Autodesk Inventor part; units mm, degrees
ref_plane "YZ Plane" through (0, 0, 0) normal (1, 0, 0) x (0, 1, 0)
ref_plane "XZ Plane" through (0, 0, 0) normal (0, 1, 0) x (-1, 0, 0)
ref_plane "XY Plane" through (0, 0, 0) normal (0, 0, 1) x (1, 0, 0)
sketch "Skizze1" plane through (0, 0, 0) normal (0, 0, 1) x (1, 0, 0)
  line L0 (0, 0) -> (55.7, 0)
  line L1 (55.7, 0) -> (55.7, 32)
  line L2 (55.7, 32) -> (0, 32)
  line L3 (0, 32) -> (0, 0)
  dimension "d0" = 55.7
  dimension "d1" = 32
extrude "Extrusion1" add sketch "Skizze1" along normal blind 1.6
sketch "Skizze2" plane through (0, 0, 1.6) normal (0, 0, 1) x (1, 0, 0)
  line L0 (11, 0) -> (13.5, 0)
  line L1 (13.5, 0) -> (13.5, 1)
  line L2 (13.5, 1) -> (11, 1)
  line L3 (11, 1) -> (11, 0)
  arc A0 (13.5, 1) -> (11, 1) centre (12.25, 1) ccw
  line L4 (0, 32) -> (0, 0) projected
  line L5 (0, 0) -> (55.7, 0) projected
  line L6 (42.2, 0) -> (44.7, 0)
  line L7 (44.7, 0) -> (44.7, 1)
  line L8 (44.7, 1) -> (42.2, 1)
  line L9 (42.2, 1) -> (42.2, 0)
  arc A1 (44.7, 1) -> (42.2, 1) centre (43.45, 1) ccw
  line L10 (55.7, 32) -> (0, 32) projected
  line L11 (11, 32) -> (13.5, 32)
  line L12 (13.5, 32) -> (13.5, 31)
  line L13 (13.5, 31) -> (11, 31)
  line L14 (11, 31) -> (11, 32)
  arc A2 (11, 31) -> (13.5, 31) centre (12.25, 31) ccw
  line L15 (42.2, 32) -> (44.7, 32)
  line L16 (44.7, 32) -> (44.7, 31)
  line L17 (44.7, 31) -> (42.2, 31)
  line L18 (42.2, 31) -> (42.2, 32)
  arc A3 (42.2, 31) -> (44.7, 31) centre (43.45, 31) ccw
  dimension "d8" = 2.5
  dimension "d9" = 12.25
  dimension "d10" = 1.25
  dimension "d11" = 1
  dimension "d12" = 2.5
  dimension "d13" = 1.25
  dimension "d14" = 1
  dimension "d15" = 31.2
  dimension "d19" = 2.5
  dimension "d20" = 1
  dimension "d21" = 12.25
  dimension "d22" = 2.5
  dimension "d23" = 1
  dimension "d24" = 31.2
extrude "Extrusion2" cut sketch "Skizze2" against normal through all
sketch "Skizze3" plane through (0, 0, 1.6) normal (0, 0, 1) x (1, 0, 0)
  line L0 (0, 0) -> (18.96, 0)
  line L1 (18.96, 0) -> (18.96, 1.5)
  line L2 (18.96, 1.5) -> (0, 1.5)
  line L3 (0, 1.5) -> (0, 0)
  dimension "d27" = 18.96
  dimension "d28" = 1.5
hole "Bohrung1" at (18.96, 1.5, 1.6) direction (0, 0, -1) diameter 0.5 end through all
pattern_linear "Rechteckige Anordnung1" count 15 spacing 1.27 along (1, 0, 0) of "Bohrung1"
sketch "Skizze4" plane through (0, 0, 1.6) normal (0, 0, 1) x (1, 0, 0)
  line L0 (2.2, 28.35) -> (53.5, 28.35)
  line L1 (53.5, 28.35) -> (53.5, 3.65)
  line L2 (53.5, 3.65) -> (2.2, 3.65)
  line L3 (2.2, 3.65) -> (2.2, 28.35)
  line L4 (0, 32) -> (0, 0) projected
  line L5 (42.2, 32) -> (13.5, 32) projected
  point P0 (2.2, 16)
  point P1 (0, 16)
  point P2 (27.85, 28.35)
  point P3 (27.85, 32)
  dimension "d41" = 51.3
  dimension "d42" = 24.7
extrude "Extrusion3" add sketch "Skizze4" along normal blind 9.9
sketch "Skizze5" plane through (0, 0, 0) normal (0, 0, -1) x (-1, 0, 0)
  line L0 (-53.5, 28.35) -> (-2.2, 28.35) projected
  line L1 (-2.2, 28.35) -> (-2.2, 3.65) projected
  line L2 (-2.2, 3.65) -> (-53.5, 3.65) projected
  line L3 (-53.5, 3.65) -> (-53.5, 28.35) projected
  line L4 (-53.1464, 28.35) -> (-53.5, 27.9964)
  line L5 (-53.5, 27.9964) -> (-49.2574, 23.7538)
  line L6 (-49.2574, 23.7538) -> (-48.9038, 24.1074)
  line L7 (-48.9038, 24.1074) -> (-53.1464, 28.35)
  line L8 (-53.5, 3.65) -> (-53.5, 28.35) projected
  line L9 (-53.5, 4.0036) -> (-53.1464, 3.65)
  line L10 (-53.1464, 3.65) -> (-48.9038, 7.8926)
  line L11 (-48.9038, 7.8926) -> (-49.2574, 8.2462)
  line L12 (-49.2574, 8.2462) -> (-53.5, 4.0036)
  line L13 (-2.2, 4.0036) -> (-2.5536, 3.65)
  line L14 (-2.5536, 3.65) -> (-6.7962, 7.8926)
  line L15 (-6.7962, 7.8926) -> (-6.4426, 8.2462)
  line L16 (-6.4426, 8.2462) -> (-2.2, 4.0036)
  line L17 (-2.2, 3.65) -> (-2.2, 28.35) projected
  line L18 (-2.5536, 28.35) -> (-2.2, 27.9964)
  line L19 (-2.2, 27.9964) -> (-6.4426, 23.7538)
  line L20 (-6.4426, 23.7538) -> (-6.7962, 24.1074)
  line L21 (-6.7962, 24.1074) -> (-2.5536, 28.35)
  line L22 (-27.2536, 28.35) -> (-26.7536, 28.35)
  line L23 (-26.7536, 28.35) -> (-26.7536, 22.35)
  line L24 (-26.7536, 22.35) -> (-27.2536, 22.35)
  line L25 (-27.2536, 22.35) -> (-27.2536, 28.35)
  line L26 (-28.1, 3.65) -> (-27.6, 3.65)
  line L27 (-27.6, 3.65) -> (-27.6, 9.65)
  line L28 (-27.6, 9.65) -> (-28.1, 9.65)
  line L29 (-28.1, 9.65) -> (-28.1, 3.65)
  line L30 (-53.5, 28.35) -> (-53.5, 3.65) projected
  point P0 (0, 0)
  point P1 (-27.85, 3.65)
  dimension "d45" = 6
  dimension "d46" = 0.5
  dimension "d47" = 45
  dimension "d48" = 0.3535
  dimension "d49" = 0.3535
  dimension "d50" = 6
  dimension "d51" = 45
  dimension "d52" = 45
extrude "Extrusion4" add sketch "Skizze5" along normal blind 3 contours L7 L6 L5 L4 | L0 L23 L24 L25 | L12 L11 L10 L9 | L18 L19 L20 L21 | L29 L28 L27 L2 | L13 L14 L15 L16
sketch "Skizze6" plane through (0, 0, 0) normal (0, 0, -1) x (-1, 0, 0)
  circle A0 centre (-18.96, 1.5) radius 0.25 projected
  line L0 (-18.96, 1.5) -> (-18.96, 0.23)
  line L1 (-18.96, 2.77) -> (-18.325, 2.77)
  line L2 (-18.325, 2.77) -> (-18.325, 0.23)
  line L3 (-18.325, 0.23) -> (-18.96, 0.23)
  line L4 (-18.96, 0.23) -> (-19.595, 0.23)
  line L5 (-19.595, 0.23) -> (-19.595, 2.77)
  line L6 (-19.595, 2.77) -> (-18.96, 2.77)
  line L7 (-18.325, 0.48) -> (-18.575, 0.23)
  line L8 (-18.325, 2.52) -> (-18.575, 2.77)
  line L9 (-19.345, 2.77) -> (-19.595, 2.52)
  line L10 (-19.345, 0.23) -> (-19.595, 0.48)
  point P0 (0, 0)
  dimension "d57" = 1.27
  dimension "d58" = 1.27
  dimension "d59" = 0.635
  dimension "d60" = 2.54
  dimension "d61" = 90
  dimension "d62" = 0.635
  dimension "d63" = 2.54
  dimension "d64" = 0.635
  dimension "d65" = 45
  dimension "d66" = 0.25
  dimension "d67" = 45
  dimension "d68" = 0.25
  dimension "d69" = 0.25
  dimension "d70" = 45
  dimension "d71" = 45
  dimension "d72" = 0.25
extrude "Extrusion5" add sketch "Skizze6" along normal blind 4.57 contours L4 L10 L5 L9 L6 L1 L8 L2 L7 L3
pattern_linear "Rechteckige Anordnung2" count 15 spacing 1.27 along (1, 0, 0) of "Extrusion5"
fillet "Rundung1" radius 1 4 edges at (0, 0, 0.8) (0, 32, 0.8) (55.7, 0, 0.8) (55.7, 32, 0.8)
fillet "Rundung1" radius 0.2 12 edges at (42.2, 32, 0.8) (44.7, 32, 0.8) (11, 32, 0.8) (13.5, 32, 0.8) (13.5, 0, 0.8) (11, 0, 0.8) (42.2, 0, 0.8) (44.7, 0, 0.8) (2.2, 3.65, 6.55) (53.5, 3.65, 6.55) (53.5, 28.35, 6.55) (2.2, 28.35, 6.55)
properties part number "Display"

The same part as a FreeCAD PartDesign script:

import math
import FreeCAD as App
import Part
import Sketcher

V = App.Vector


def edges_at(feature, points):
    """Names of the edges that pass closest to the given points."""
    edges = feature.Shape.Edges
    near = lambda p: min(range(len(edges)), key=lambda i: edges[i].distToShape(Part.Vertex(*p))[0])
    return sorted({f"Edge{near(p) + 1}" for p in points})

doc = App.newDocument("Part")
body = doc.addObject("PartDesign::Body", "Body")

sketch1 = doc.addObject("Sketcher::SketchObject", "Sketch")
body.addObject(sketch1)
sketch1.AttachmentSupport = (doc.XY_Plane, [""])
sketch1.MapMode = "FlatFace"
sketch1.addGeometry(Part.LineSegment(V(0, 32, 0), V(0, 0, 0)), False)
sketch1.addGeometry(Part.LineSegment(V(0, 0, 0), V(56, 0, 0)), False)
sketch1.addGeometry(Part.LineSegment(V(56, 0, 0), V(56, 32, 0)), False)
sketch1.addGeometry(Part.LineSegment(V(56, 32, 0), V(0, 32, 0)), False)
sketch1.addConstraint(Sketcher.Constraint("Coincident", 0, 2, 1, 1))
sketch1.addConstraint(Sketcher.Constraint("Coincident", 1, 2, 2, 1))
sketch1.addConstraint(Sketcher.Constraint("Coincident", 2, 2, 3, 1))
sketch1.addConstraint(Sketcher.Constraint("Coincident", 3, 2, 0, 1))
sketch1.addConstraint(Sketcher.Constraint("Vertical", 0))
sketch1.addConstraint(Sketcher.Constraint("Horizontal", 1))
sketch1.addConstraint(Sketcher.Constraint("Vertical", 2))
sketch1.addConstraint(Sketcher.Constraint("Horizontal", 3))
sketch1.addConstraint(Sketcher.Constraint("Coincident", 0, 2, -1, 1))
sketch1.addConstraint(Sketcher.Constraint("DistanceY", 0, 2, 0, 1, 32.0))
sketch1.addConstraint(Sketcher.Constraint("DistanceX", 1, 1, 1, 2, 55.7))
pad1 = doc.addObject("PartDesign::Pad", "Pad")
body.addObject(pad1)
pad1.Profile = sketch1
pad1.Length = 1.6

sketch2 = doc.addObject("Sketcher::SketchObject", "Sketch001")
body.addObject(sketch2)
sketch2.AttachmentSupport = (doc.XY_Plane, [""])
sketch2.MapMode = "FlatFace"
sketch2.AttachmentOffset = App.Placement(V(0, 0, 1.6), App.Rotation())
sketch2.addGeometry(Part.LineSegment(V(11, 1, 0), V(11, 0, 0)), False)
sketch2.addGeometry(Part.LineSegment(V(11, 0, 0), V(13.5, 0, 0)), False)
sketch2.addGeometry(Part.LineSegment(V(13.5, 0, 0), V(13.5, 1, 0)), False)
sketch2.addGeometry(Part.ArcOfCircle(Part.Circle(V(12.2, 1, 0), V(0, 0, 1), 1.2), math.radians(0), math.radians(180)), False)
sketch2.addGeometry(Part.LineSegment(V(42.2, 1, 0), V(42.2, 0, 0)), False)
sketch2.addGeometry(Part.LineSegment(V(42.2, 0, 0), V(44.7, 0, 0)), False)
sketch2.addGeometry(Part.LineSegment(V(44.7, 0, 0), V(44.7, 1, 0)), False)
sketch2.addGeometry(Part.ArcOfCircle(Part.Circle(V(43.5, 1, 0), V(0, 0, 1), 1.2), math.radians(0), math.radians(180)), False)
sketch2.addGeometry(Part.LineSegment(V(44.7, 32, 0), V(42.2, 32, 0)), False)
sketch2.addGeometry(Part.LineSegment(V(42.2, 32, 0), V(42.2, 31, 0)), False)
sketch2.addGeometry(Part.ArcOfCircle(Part.Circle(V(43.5, 31, 0), V(0, 0, 1), 1.2), math.radians(180), math.radians(360)), False)
sketch2.addGeometry(Part.LineSegment(V(44.7, 31, 0), V(44.7, 32, 0)), False)
sketch2.addGeometry(Part.LineSegment(V(13.5, 32, 0), V(11, 32, 0)), False)
sketch2.addGeometry(Part.LineSegment(V(11, 32, 0), V(11, 31, 0)), False)
sketch2.addGeometry(Part.ArcOfCircle(Part.Circle(V(12.2, 31, 0), V(0, 0, 1), 1.2), math.radians(180), math.radians(360)), False)
sketch2.addGeometry(Part.LineSegment(V(13.5, 31, 0), V(13.5, 32, 0)), False)
sketch2.addConstraint(Sketcher.Constraint("Coincident", 0, 2, 1, 1))
sketch2.addConstraint(Sketcher.Constraint("Coincident", 1, 2, 2, 1))
sketch2.addConstraint(Sketcher.Constraint("Tangent", 2, 2, 3, 1))
sketch2.addConstraint(Sketcher.Constraint("Tangent", 3, 2, 0, 1))
sketch2.addConstraint(Sketcher.Constraint("Coincident", 4, 2, 5, 1))
sketch2.addConstraint(Sketcher.Constraint("Coincident", 5, 2, 6, 1))
sketch2.addConstraint(Sketcher.Constraint("Tangent", 6, 2, 7, 1))
sketch2.addConstraint(Sketcher.Constraint("Tangent", 7, 2, 4, 1))
sketch2.addConstraint(Sketcher.Constraint("Coincident", 8, 2, 9, 1))
sketch2.addConstraint(Sketcher.Constraint("Tangent", 9, 2, 10, 1))
sketch2.addConstraint(Sketcher.Constraint("Tangent", 10, 2, 11, 1))
sketch2.addConstraint(Sketcher.Constraint("Coincident", 11, 2, 8, 1))
sketch2.addConstraint(Sketcher.Constraint("Coincident", 12, 2, 13, 1))
sketch2.addConstraint(Sketcher.Constraint("Tangent", 13, 2, 14, 1))
sketch2.addConstraint(Sketcher.Constraint("Tangent", 14, 2, 15, 1))
sketch2.addConstraint(Sketcher.Constraint("Coincident", 15, 2, 12, 1))
sketch2.addConstraint(Sketcher.Constraint("Vertical", 0))
sketch2.addConstraint(Sketcher.Constraint("Horizontal", 1))
sketch2.addConstraint(Sketcher.Constraint("Vertical", 2))
sketch2.addConstraint(Sketcher.Constraint("Vertical", 4))
sketch2.addConstraint(Sketcher.Constraint("Horizontal", 5))
sketch2.addConstraint(Sketcher.Constraint("Vertical", 6))
sketch2.addConstraint(Sketcher.Constraint("Horizontal", 8))
sketch2.addConstraint(Sketcher.Constraint("Vertical", 9))
sketch2.addConstraint(Sketcher.Constraint("Vertical", 11))
sketch2.addConstraint(Sketcher.Constraint("Horizontal", 12))
sketch2.addConstraint(Sketcher.Constraint("Vertical", 13))
sketch2.addConstraint(Sketcher.Constraint("Vertical", 15))
sketch2.addConstraint(Sketcher.Constraint("Equal", 3, 7))
sketch2.addConstraint(Sketcher.Constraint("Equal", 7, 10))
sketch2.addConstraint(Sketcher.Constraint("Equal", 10, 14))
sketch2.addConstraint(Sketcher.Constraint("PointOnObject", 0, 2, -1))
sketch2.addConstraint(Sketcher.Constraint("PointOnObject", 4, 2, -1))
sketch2.addConstraint(Sketcher.Constraint("Horizontal", 3, 3, 7, 3))
sketch2.addConstraint(Sketcher.Constraint("Horizontal", 10, 3, 14, 3))
sketch2.addConstraint(Sketcher.Constraint("Horizontal", 11, 2, 12, 2))
sketch2.addConstraint(Sketcher.Constraint("Vertical", 7, 3, 10, 3))
sketch2.addConstraint(Sketcher.Constraint("Vertical", 3, 3, 14, 3))
sketch2.addConstraint(Sketcher.Constraint("Equal", 6, 9))
sketch2.addConstraint(Sketcher.Constraint("DistanceY", 0, 2, 0, 1, 1.0))
sketch2.addConstraint(Sketcher.Constraint("Radius", 3, 1.25))
sketch2.addConstraint(Sketcher.Constraint("DistanceX", 3, 3, 7, 3, 31.2))
sketch2.addConstraint(Sketcher.Constraint("DistanceX", -1, 1, 3, 3, 12.25))
sketch2.addConstraint(Sketcher.Constraint("DistanceY", -1, 1, 10, 3, 31.0))
pocket1 = doc.addObject("PartDesign::Pocket", "Pocket")
body.addObject(pocket1)
pocket1.Profile = sketch2
pocket1.Type = "ThroughAll"

sketch3 = doc.addObject("Sketcher::SketchObject", "Sketch002")
body.addObject(sketch3)
sketch3.AttachmentSupport = (doc.XY_Plane, [""])
sketch3.MapMode = "FlatFace"
sketch3.AttachmentOffset = App.Placement(V(0, 0, 1.6), App.Rotation())
sketch3.addGeometry(Part.Circle(V(18.96, 1.5, 0), V(0, 0, 1), 0.25), False)
sketch3.addConstraint(Sketcher.Constraint("Diameter", 0, 0.5))
sketch3.addConstraint(Sketcher.Constraint("DistanceY", -1, 1, 0, 3, 1.5))
sketch3.addConstraint(Sketcher.Constraint("DistanceX", -1, 1, 0, 3, 18.96))
doc.recompute()
hole = doc.addObject("PartDesign::Hole", "Hole")
body.addObject(hole)
hole.Profile = sketch3
hole.ThreadType = "None"
hole.Diameter = 0.5
hole.DepthType = "ThroughAll"
doc.recompute()

linearpattern = doc.addObject("PartDesign::LinearPattern", "LinearPattern")
body.addObject(linearpattern)
linearpattern.Originals = [hole]
linearpattern.Direction = (doc.X_Axis, [""])
linearpattern.Mode = "offset"
linearpattern.Offset = 1.27
linearpattern.Occurrences = 15
body.Tip = linearpattern

sketch4 = doc.addObject("Sketcher::SketchObject", "Sketch003")
body.addObject(sketch4)
sketch4.AttachmentSupport = (doc.XY_Plane, [""])
sketch4.MapMode = "FlatFace"
sketch4.AttachmentOffset = App.Placement(V(0, 0, 1.6), App.Rotation())
sketch4.addGeometry(Part.LineSegment(V(54, 28, 0), V(2, 28, 0)), False)
sketch4.addGeometry(Part.LineSegment(V(2, 28, 0), V(2, 4, 0)), False)
sketch4.addGeometry(Part.LineSegment(V(2, 4, 0), V(54, 4, 0)), False)
sketch4.addGeometry(Part.LineSegment(V(54, 4, 0), V(54, 28, 0)), False)
sketch4.addConstraint(Sketcher.Constraint("Coincident", 0, 2, 1, 1))
sketch4.addConstraint(Sketcher.Constraint("Coincident", 1, 2, 2, 1))
sketch4.addConstraint(Sketcher.Constraint("Coincident", 2, 2, 3, 1))
sketch4.addConstraint(Sketcher.Constraint("Coincident", 3, 2, 0, 1))
sketch4.addConstraint(Sketcher.Constraint("Horizontal", 0))
sketch4.addConstraint(Sketcher.Constraint("Vertical", 1))
sketch4.addConstraint(Sketcher.Constraint("Horizontal", 2))
sketch4.addConstraint(Sketcher.Constraint("Vertical", 3))
sketch4.addConstraint(Sketcher.Constraint("DistanceX", 0, 2, 0, 1, 51.3))
sketch4.addConstraint(Sketcher.Constraint("DistanceY", 1, 2, 1, 1, 24.7))
sketch4.addConstraint(Sketcher.Constraint("DistanceX", -1, 1, 0, 2, 2.2))
sketch4.addConstraint(Sketcher.Constraint("DistanceY", -1, 1, 0, 2, 28.35))
pad2 = doc.addObject("PartDesign::Pad", "Pad001")
body.addObject(pad2)
pad2.Profile = sketch4
pad2.Length = 9.9

sketch5 = doc.addObject("Sketcher::SketchObject", "Sketch004")
body.addObject(sketch5)
sketch5.AttachmentSupport = (doc.XY_Plane, [""])
sketch5.MapMode = "FlatFace"
sketch5.addGeometry(Part.LineSegment(V(48.9, 24.1, 0), V(53.1, 28.4, 0)), False)
sketch5.addGeometry(Part.LineSegment(V(53.1, 28.4, 0), V(53.5, 28, 0)), False)
sketch5.addGeometry(Part.LineSegment(V(53.5, 28, 0), V(49.3, 23.8, 0)), False)
sketch5.addGeometry(Part.LineSegment(V(49.3, 23.8, 0), V(48.9, 24.1, 0)), False)
sketch5.addGeometry(Part.LineSegment(V(26.8, 28.4, 0), V(27.3, 28.4, 0)), False)
sketch5.addGeometry(Part.LineSegment(V(27.3, 28.4, 0), V(27.3, 22.4, 0)), False)
sketch5.addGeometry(Part.LineSegment(V(27.3, 22.4, 0), V(26.8, 22.4, 0)), False)
sketch5.addGeometry(Part.LineSegment(V(26.8, 22.4, 0), V(26.8, 28.4, 0)), False)
sketch5.addGeometry(Part.LineSegment(V(49.3, 8.2, 0), V(53.5, 4, 0)), False)
sketch5.addGeometry(Part.LineSegment(V(53.5, 4, 0), V(53.1, 3.6, 0)), False)
sketch5.addGeometry(Part.LineSegment(V(53.1, 3.6, 0), V(48.9, 7.9, 0)), False)
sketch5.addGeometry(Part.LineSegment(V(48.9, 7.9, 0), V(49.3, 8.2, 0)), False)
sketch5.addGeometry(Part.LineSegment(V(2.2, 28, 0), V(2.6, 28.4, 0)), False)
sketch5.addGeometry(Part.LineSegment(V(2.6, 28.4, 0), V(6.8, 24.1, 0)), False)
sketch5.addGeometry(Part.LineSegment(V(6.8, 24.1, 0), V(6.4, 23.8, 0)), False)
sketch5.addGeometry(Part.LineSegment(V(6.4, 23.8, 0), V(2.2, 28, 0)), False)
sketch5.addGeometry(Part.LineSegment(V(28.1, 9.7, 0), V(28.1, 3.6, 0)), False)
sketch5.addGeometry(Part.LineSegment(V(28.1, 3.6, 0), V(27.6, 3.6, 0)), False)
sketch5.addGeometry(Part.LineSegment(V(27.6, 3.6, 0), V(27.6, 9.7, 0)), False)
sketch5.addGeometry(Part.LineSegment(V(27.6, 9.7, 0), V(28.1, 9.7, 0)), False)
sketch5.addGeometry(Part.LineSegment(V(2.6, 3.6, 0), V(2.2, 4, 0)), False)
sketch5.addGeometry(Part.LineSegment(V(2.2, 4, 0), V(6.4, 8.2, 0)), False)
sketch5.addGeometry(Part.LineSegment(V(6.4, 8.2, 0), V(6.8, 7.9, 0)), False)
sketch5.addGeometry(Part.LineSegment(V(6.8, 7.9, 0), V(2.6, 3.6, 0)), False)
sketch5.addConstraint(Sketcher.Constraint("Coincident", 0, 2, 1, 1))
sketch5.addConstraint(Sketcher.Constraint("Coincident", 1, 2, 2, 1))
sketch5.addConstraint(Sketcher.Constraint("Coincident", 2, 2, 3, 1))
sketch5.addConstraint(Sketcher.Constraint("Coincident", 3, 2, 0, 1))
sketch5.addConstraint(Sketcher.Constraint("Coincident", 4, 2, 5, 1))
sketch5.addConstraint(Sketcher.Constraint("Coincident", 5, 2, 6, 1))
sketch5.addConstraint(Sketcher.Constraint("Coincident", 6, 2, 7, 1))
sketch5.addConstraint(Sketcher.Constraint("Coincident", 7, 2, 4, 1))
sketch5.addConstraint(Sketcher.Constraint("Coincident", 8, 2, 9, 1))
sketch5.addConstraint(Sketcher.Constraint("Coincident", 9, 2, 10, 1))
sketch5.addConstraint(Sketcher.Constraint("Coincident", 10, 2, 11, 1))
sketch5.addConstraint(Sketcher.Constraint("Coincident", 11, 2, 8, 1))
sketch5.addConstraint(Sketcher.Constraint("Coincident", 12, 2, 13, 1))
sketch5.addConstraint(Sketcher.Constraint("Coincident", 13, 2, 14, 1))
sketch5.addConstraint(Sketcher.Constraint("Coincident", 14, 2, 15, 1))
sketch5.addConstraint(Sketcher.Constraint("Coincident", 15, 2, 12, 1))
sketch5.addConstraint(Sketcher.Constraint("Coincident", 16, 2, 17, 1))
sketch5.addConstraint(Sketcher.Constraint("Coincident", 17, 2, 18, 1))
sketch5.addConstraint(Sketcher.Constraint("Coincident", 18, 2, 19, 1))
sketch5.addConstraint(Sketcher.Constraint("Coincident", 19, 2, 16, 1))
sketch5.addConstraint(Sketcher.Constraint("Coincident", 20, 2, 21, 1))
sketch5.addConstraint(Sketcher.Constraint("Coincident", 21, 2, 22, 1))
sketch5.addConstraint(Sketcher.Constraint("Coincident", 22, 2, 23, 1))
sketch5.addConstraint(Sketcher.Constraint("Coincident", 23, 2, 20, 1))
sketch5.addConstraint(Sketcher.Constraint("Horizontal", 4))
sketch5.addConstraint(Sketcher.Constraint("Vertical", 5))
sketch5.addConstraint(Sketcher.Constraint("Horizontal", 6))
sketch5.addConstraint(Sketcher.Constraint("Vertical", 7))
sketch5.addConstraint(Sketcher.Constraint("Vertical", 16))
sketch5.addConstraint(Sketcher.Constraint("Horizontal", 17))
sketch5.addConstraint(Sketcher.Constraint("Vertical", 18))
sketch5.addConstraint(Sketcher.Constraint("Horizontal", 19))
sketch5.addConstraint(Sketcher.Constraint("Perpendicular", 0, 1))
sketch5.addConstraint(Sketcher.Constraint("Perpendicular", 1, 2))
sketch5.addConstraint(Sketcher.Constraint("Perpendicular", 2, 3))
sketch5.addConstraint(Sketcher.Constraint("Parallel", 3, 8))
sketch5.addConstraint(Sketcher.Constraint("Perpendicular", 8, 9))
sketch5.addConstraint(Sketcher.Constraint("Perpendicular", 9, 10))
sketch5.addConstraint(Sketcher.Constraint("Perpendicular", 10, 11))
sketch5.addConstraint(Sketcher.Constraint("Parallel", 11, 12))
sketch5.addConstraint(Sketcher.Constraint("Perpendicular", 12, 13))
sketch5.addConstraint(Sketcher.Constraint("Perpendicular", 13, 14))
sketch5.addConstraint(Sketcher.Constraint("Perpendicular", 14, 15))
sketch5.addConstraint(Sketcher.Constraint("Parallel", 15, 20))
sketch5.addConstraint(Sketcher.Constraint("Perpendicular", 20, 21))
sketch5.addConstraint(Sketcher.Constraint("Perpendicular", 21, 22))
sketch5.addConstraint(Sketcher.Constraint("Perpendicular", 22, 23))
sketch5.addConstraint(Sketcher.Constraint("Horizontal", 0, 2, 4, 2))
sketch5.addConstraint(Sketcher.Constraint("Horizontal", 7, 2, 12, 2))
sketch5.addConstraint(Sketcher.Constraint("Horizontal", 3, 2, 13, 2))
sketch5.addConstraint(Sketcher.Constraint("Horizontal", 2, 2, 14, 2))
sketch5.addConstraint(Sketcher.Constraint("Horizontal", 9, 2, 16, 2))
sketch5.addConstraint(Sketcher.Constraint("Horizontal", 8, 2, 20, 2))
sketch5.addConstraint(Sketcher.Constraint("Horizontal", 11, 2, 21, 2))
sketch5.addConstraint(Sketcher.Constraint("Horizontal", 10, 2, 22, 2))
sketch5.addConstraint(Sketcher.Constraint("Vertical", 1, 2, 8, 2))
sketch5.addConstraint(Sketcher.Constraint("Vertical", 0, 2, 9, 2))
sketch5.addConstraint(Sketcher.Constraint("Vertical", 3, 2, 10, 2))
sketch5.addConstraint(Sketcher.Constraint("Vertical", 15, 2, 20, 2))
sketch5.addConstraint(Sketcher.Constraint("Vertical", 14, 2, 21, 2))
sketch5.addConstraint(Sketcher.Constraint("Equal", 6, 17))
sketch5.addConstraint(Sketcher.Constraint("Equal", 7, 16))
sketch5.addConstraint(Sketcher.Constraint("DistanceY", 5, 2, 5, 1, 6.0))
sketch5.addConstraint(Sketcher.Constraint("Distance", 0, 6.0))
sketch5.addConstraint(Sketcher.Constraint("DistanceX", 4, 1, 4, 2, 0.5))
sketch5.addConstraint(Sketcher.Constraint("Distance", 1, 0.5))
sketch5.addConstraint(Sketcher.Constraint("DistanceX", -1, 1, 1, 2, 53.5))
sketch5.addConstraint(Sketcher.Constraint("DistanceX", -1, 1, 15, 2, 2.2))
sketch5.addConstraint(Sketcher.Constraint("DistanceX", -1, 1, 16, 2, 28.1))
sketch5.addConstraint(Sketcher.Constraint("DistanceY", 9, 2, 0, 2, 24.7))
sketch5.addConstraint(Sketcher.Constraint("DistanceX", 12, 2, 7, 2, 24.2))
sketch5.addConstraint(Sketcher.Constraint("DistanceY", -1, 1, 0, 2, 28.35))
pad3 = doc.addObject("PartDesign::Pad", "Pad002")
body.addObject(pad3)
pad3.Profile = sketch5
pad3.Length = 3
pad3.Reversed = True

sketch6 = doc.addObject("Sketcher::SketchObject", "Sketch005")
body.addObject(sketch6)
sketch6.AttachmentSupport = (doc.XY_Plane, [""])
sketch6.MapMode = "FlatFace"
sketch6.addGeometry(Part.LineSegment(V(19.34, 0.23, 0), V(18.96, 0.23, 0)), False)
sketch6.addGeometry(Part.LineSegment(V(18.96, 0.23, 0), V(18.57, 0.23, 0)), False)
sketch6.addGeometry(Part.LineSegment(V(18.57, 0.23, 0), V(18.32, 0.48, 0)), False)
sketch6.addGeometry(Part.LineSegment(V(18.32, 0.48, 0), V(18.32, 2.52, 0)), False)
sketch6.addGeometry(Part.LineSegment(V(18.32, 2.52, 0), V(18.57, 2.77, 0)), False)
sketch6.addGeometry(Part.LineSegment(V(18.57, 2.77, 0), V(19.34, 2.77, 0)), False)
sketch6.addGeometry(Part.LineSegment(V(19.34, 2.77, 0), V(19.59, 2.52, 0)), False)
sketch6.addGeometry(Part.LineSegment(V(19.59, 2.52, 0), V(19.59, 0.48, 0)), False)
sketch6.addGeometry(Part.LineSegment(V(19.59, 0.48, 0), V(19.34, 0.23, 0)), False)
sketch6.addGeometry(Part.Circle(V(18.96, 1.5, 0), V(0, 0, 1), 0.25), False)
sketch6.addConstraint(Sketcher.Constraint("Coincident", 0, 2, 1, 1))
sketch6.addConstraint(Sketcher.Constraint("Coincident", 1, 2, 2, 1))
sketch6.addConstraint(Sketcher.Constraint("Coincident", 2, 2, 3, 1))
sketch6.addConstraint(Sketcher.Constraint("Coincident", 3, 2, 4, 1))
sketch6.addConstraint(Sketcher.Constraint("Coincident", 4, 2, 5, 1))
sketch6.addConstraint(Sketcher.Constraint("Coincident", 5, 2, 6, 1))
sketch6.addConstraint(Sketcher.Constraint("Coincident", 6, 2, 7, 1))
sketch6.addConstraint(Sketcher.Constraint("Coincident", 7, 2, 8, 1))
sketch6.addConstraint(Sketcher.Constraint("Coincident", 8, 2, 0, 1))
sketch6.addConstraint(Sketcher.Constraint("Horizontal", 0))
sketch6.addConstraint(Sketcher.Constraint("Horizontal", 1))
sketch6.addConstraint(Sketcher.Constraint("Vertical", 3))
sketch6.addConstraint(Sketcher.Constraint("Horizontal", 5))
sketch6.addConstraint(Sketcher.Constraint("Vertical", 7))
sketch6.addConstraint(Sketcher.Constraint("Perpendicular", 2, 4))
sketch6.addConstraint(Sketcher.Constraint("Perpendicular", 4, 6))
sketch6.addConstraint(Sketcher.Constraint("Perpendicular", 6, 8))
sketch6.addConstraint(Sketcher.Constraint("Horizontal", 3, 2, 6, 2))
sketch6.addConstraint(Sketcher.Constraint("Horizontal", 2, 2, 7, 2))
sketch6.addConstraint(Sketcher.Constraint("Vertical", 9, 3, 0, 2))
sketch6.addConstraint(Sketcher.Constraint("Vertical", 1, 2, 4, 2))
sketch6.addConstraint(Sketcher.Constraint("Vertical", 5, 2, 8, 2))
sketch6.addConstraint(Sketcher.Constraint("Equal", 0, 1))
sketch6.addConstraint(Sketcher.Constraint("Diameter", 9, 0.5))
sketch6.addConstraint(Sketcher.Constraint("DistanceY", 0, 2, 9, 3, 1.27))
sketch6.addConstraint(Sketcher.Constraint("DistanceX", 2, 2, 1, 2, 0.25))
sketch6.addConstraint(Sketcher.Constraint("DistanceY", 9, 3, 4, 2, 1.27))
sketch6.addConstraint(Sketcher.Constraint("DistanceX", 3, 2, 6, 2, 1.27))
sketch6.addConstraint(Sketcher.Constraint("DistanceY", -1, 1, 9, 3, 1.5))
sketch6.addConstraint(Sketcher.Constraint("DistanceX", -1, 1, 9, 3, 18.96))
pad4 = doc.addObject("PartDesign::Pad", "Pad003")
body.addObject(pad4)
pad4.Profile = sketch6
pad4.Length = 4.57
pad4.Reversed = True
doc.recompute()

linearpattern2 = doc.addObject("PartDesign::LinearPattern", "LinearPattern001")
body.addObject(linearpattern2)
linearpattern2.Originals = [pad4]
linearpattern2.Direction = (doc.X_Axis, [""])
linearpattern2.Mode = "offset"
linearpattern2.Offset = 1.27
linearpattern2.Occurrences = 15
body.Tip = linearpattern2
doc.recompute()

fillet = doc.addObject("PartDesign::Fillet", "Fillet")
body.addObject(fillet)
fillet.Base = (linearpattern2, edges_at(linearpattern2, [
    (0, 0, 0.8),
    (0, 32, 0.8),
    (55.7, 0, 0.8),
    (55.7, 32, 0.8),
]))
fillet.Radius = 1
doc.recompute()

fillet2 = doc.addObject("PartDesign::Fillet", "Fillet001")
body.addObject(fillet2)
fillet2.Base = (fillet, edges_at(fillet, [
    (42.2, 32, 0.8),
    (44.7, 32, 0.8),
    (11, 32, 0.8),
    (13.5, 32, 0.8),
    (13.5, 0, 0.8),
    (11, 0, 0.8),
    (42.2, 0, 0.8),
    (44.7, 0, 0.8),
    (2.2, 3.65, 6.55),
    (53.5, 3.65, 6.55),
    (53.5, 28.35, 6.55),
    (2.2, 28.35, 6.55),
]))
fillet2.Radius = 0.2

doc.recompute()
